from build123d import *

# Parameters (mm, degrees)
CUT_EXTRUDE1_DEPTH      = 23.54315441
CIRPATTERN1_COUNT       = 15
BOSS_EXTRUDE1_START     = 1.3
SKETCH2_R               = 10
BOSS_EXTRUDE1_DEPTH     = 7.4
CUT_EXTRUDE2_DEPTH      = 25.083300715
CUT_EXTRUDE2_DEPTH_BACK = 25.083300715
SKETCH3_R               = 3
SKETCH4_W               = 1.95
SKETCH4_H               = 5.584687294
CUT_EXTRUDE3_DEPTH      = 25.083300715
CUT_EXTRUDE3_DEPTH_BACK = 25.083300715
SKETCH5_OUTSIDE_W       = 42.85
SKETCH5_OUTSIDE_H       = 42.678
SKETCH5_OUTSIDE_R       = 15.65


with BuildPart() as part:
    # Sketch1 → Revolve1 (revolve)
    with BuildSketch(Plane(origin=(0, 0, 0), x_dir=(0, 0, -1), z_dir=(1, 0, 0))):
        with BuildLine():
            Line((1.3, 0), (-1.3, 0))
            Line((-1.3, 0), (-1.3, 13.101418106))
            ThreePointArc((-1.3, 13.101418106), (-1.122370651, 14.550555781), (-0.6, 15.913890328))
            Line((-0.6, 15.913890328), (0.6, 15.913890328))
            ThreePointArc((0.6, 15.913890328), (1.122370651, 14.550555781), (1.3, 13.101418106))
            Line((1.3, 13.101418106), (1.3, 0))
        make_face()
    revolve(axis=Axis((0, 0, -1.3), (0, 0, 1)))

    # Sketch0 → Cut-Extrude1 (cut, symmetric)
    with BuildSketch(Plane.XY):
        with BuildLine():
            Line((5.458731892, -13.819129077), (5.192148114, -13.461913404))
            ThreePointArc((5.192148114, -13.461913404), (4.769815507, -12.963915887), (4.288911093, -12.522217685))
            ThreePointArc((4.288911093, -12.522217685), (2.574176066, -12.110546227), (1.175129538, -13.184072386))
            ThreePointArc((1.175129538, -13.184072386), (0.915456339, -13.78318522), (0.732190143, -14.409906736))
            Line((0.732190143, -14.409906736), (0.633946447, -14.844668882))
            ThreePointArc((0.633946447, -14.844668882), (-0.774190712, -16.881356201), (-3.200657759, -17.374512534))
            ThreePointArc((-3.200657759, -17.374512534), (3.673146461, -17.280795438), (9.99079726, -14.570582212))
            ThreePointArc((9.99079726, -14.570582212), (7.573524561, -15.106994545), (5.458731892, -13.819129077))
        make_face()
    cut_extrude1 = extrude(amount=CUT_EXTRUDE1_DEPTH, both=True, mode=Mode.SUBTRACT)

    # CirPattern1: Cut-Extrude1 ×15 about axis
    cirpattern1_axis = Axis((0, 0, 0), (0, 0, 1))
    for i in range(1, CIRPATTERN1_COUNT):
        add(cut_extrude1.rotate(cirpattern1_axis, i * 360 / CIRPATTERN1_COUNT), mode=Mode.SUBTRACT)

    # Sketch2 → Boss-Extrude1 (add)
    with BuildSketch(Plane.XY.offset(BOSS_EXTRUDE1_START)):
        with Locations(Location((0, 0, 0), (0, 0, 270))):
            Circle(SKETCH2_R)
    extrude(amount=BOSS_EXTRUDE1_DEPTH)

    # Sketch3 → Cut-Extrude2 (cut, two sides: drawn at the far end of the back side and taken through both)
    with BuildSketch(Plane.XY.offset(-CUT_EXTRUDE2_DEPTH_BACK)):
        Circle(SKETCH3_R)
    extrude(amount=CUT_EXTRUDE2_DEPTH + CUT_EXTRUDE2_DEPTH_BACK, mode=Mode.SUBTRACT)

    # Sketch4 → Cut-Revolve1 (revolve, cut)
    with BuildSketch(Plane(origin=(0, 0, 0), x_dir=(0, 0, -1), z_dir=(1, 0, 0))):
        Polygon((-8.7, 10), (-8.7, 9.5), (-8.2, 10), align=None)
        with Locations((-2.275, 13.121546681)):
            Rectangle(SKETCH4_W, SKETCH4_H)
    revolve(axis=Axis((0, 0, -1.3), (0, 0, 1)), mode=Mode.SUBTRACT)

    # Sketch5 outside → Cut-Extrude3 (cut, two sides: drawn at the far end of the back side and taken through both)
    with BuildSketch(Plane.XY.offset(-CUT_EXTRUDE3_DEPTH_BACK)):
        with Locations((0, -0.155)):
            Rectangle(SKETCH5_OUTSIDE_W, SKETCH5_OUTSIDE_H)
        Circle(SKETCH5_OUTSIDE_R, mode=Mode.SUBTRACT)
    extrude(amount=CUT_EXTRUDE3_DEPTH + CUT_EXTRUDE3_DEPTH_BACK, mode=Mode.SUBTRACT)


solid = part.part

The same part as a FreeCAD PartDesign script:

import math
import FreeCAD as App
import Part
import Sketcher

V = App.Vector


def add_polygon(sketch, points):
    """Adds a closed chain of lines whose ends are joined by coincident constraints."""
    first, n = sketch.GeometryCount, len(points)
    for a, b in zip(points, points[1:] + points[:1]):
        sketch.addGeometry(Part.LineSegment(App.Vector(*a, 0), App.Vector(*b, 0)), False)
    for i in range(n):
        sketch.addConstraint(Sketcher.Constraint("Coincident", first + i, 2, first + (i + 1) % n, 1))

doc = App.newDocument("Part")
body = doc.addObject("PartDesign::Body", "Body")

# Sketch on YZ plane
sketch1 = body.newObject("Sketcher::SketchObject", "Sketch")
sketch1.AttachmentSupport = (doc.getObject("YZ_Plane"), [""])
sketch1.MapMode = "FlatFace"
sketch1.addGeometry(Part.LineSegment(V(0, 1.3, 0), V(0, -1.3, 0)), False)
sketch1.addGeometry(Part.LineSegment(V(0, -1.3, 0), V(13.1, -1.3, 0)), False)
sketch1.addGeometry(Part.ArcOfCircle(Part.Circle(V(13.1, 4.7, 0), V(0, 0, 1), 6), math.radians(-90), math.radians(-62)), False)
sketch1.addGeometry(Part.LineSegment(V(15.9, -0.6, 0), V(15.9, 0.6, 0)), False)
sketch1.addGeometry(Part.ArcOfCircle(Part.Circle(V(13.1, -4.7, 0), V(0, 0, 1), 6), math.radians(62), math.radians(90)), False)
sketch1.addGeometry(Part.LineSegment(V(13.1, 1.3, 0), V(0, 1.3, 0)), False)
sketch1.addConstraint(Sketcher.Constraint("Coincident", 0, 2, 1, 1))
sketch1.addConstraint(Sketcher.Constraint("Tangent", 1, 2, 2, 1))
sketch1.addConstraint(Sketcher.Constraint("Coincident", 2, 2, 3, 1))
sketch1.addConstraint(Sketcher.Constraint("Coincident", 3, 2, 4, 1))
sketch1.addConstraint(Sketcher.Constraint("Tangent", 4, 2, 5, 1))
sketch1.addConstraint(Sketcher.Constraint("Coincident", 5, 2, 0, 1))
sketch1.addConstraint(Sketcher.Constraint("Vertical", 0))
sketch1.addConstraint(Sketcher.Constraint("Horizontal", 1))
sketch1.addConstraint(Sketcher.Constraint("Vertical", 3))
sketch1.addConstraint(Sketcher.Constraint("Horizontal", 5))
sketch1.addConstraint(Sketcher.Constraint("Equal", 2, 4))
sketch1.addConstraint(Sketcher.Constraint("Symmetric", 0, 2, 5, 2, -1, 1))
sketch1.addConstraint(Sketcher.Constraint("Vertical", 2, 3, 4, 3))
sketch1.addConstraint(Sketcher.Constraint("Radius", 2, 6.0))
sketch1.addConstraint(Sketcher.Constraint("DistanceY", 0, 2, 0, 1, 2.6))
sketch1.addConstraint(Sketcher.Constraint("DistanceY", 3, 1, 3, 2, 1.2))
sketch1.addConstraint(Sketcher.Constraint("DistanceX", 1, 1, 1, 2, 13.101418))
revolution = body.newObject("PartDesign::Revolution", "Revolution")
revolution.Profile = sketch1
revolution.ReferenceAxis = (sketch1, ["V_Axis"])
revolution.Angle = 360

# Sketch on XY plane
sketch2 = body.newObject("Sketcher::SketchObject", "Sketch001")
sketch2.AttachmentSupport = (doc.getObject("XY_Plane"), [""])
sketch2.MapMode = "FlatFace"
sketch2.addGeometry(Part.LineSegment(V(5.46, -13.82, 0), V(5.19, -13.46, 0)), False)
sketch2.addGeometry(Part.ArcOfCircle(Part.Circle(V(0.99, -16.6, 0), V(0, 0, 1), 5.25), math.radians(36.73), math.radians(51)), False)
sketch2.addGeometry(Part.ArcOfCircle(Part.Circle(V(3, -14.11, 0), V(0, 0, 1), 2.05), math.radians(51), math.radians(153)), False)
sketch2.addGeometry(Part.ArcOfCircle(Part.Circle(V(5.85, -15.57, 0), V(0, 0, 1), 5.25), math.radians(153), math.radians(167.27)), False)
sketch2.addGeometry(Part.LineSegment(V(0.73, -14.41, 0), V(0.63, -14.84, 0)), False)
sketch2.addGeometry(Part.ArcOfCircle(Part.Circle(V(-2.6, -14.11, 0), V(0, 0, 1), 3.32), math.radians(-100), math.radians(-13)), False)
sketch2.addGeometry(Part.ArcOfCircle(Part.Circle(V(0, 0, 0), V(0, 0, 1), 17.67), math.radians(-100), math.radians(-56)), False)
sketch2.addGeometry(Part.ArcOfCircle(Part.Circle(V(8.12, -11.84, 0), V(0, 0, 1), 3.32), math.radians(-143), math.radians(-56)), False)
sketch2.addConstraint(Sketcher.Constraint("Tangent", 0, 2, 1, 1))
sketch2.addConstraint(Sketcher.Constraint("Tangent", 1, 2, 2, 1))
sketch2.addConstraint(Sketcher.Constraint("Tangent", 2, 2, 3, 1))
sketch2.addConstraint(Sketcher.Constraint("Tangent", 3, 2, 4, 1))
sketch2.addConstraint(Sketcher.Constraint("Tangent", 4, 2, 5, 2))
sketch2.addConstraint(Sketcher.Constraint("Tangent", 5, 1, 6, 1))
sketch2.addConstraint(Sketcher.Constraint("Tangent", 6, 2, 7, 2))
sketch2.addConstraint(Sketcher.Constraint("Tangent", 7, 1, 0, 1))
sketch2.addConstraint(Sketcher.Constraint("Coincident", 6, 3, -1, 1))
sketch2.addConstraint(Sketcher.Constraint("Equal", 1, 3))
sketch2.addConstraint(Sketcher.Constraint("Equal", 5, 7))
sketch2.addConstraint(Sketcher.Constraint("Horizontal", 2, 3, 5, 3))
sketch2.addConstraint(Sketcher.Constraint("Equal", 0, 4))
sketch2.addConstraint(Sketcher.Constraint("DistanceX", -1, 1, 2, 3, 3.0))
sketch2.addConstraint(Sketcher.Constraint("DistanceX", 5, 3, -1, 1, 2.6))
sketch2.addConstraint(Sketcher.Constraint("Radius", 1, 5.2481))
sketch2.addConstraint(Sketcher.Constraint("Radius", 2, 2.0481))
sketch2.addConstraint(Sketcher.Constraint("Radius", 6, 17.666859))
sketch2.addConstraint(Sketcher.Constraint("Radius", 5, 3.315486))
sketch2.addConstraint(Sketcher.Constraint("DistanceX", -1, 1, 3, 3, 5.851221))
sketch2.addConstraint(Sketcher.Constraint("DistanceX", -1, 1, 0, 2, 5.192148))
pocket1 = body.newObject("PartDesign::Pocket", "Pocket")
pocket1.Profile = sketch2
pocket1.Length = 47.086309
pocket1.Midplane = True
doc.recompute()

polarpattern = body.newObject("PartDesign::PolarPattern", "PolarPattern")
polarpattern.Originals = [pocket1]
polarpattern.Axis = (doc.getObject("Z_Axis"), [""])
polarpattern.Angle = 360
polarpattern.Occurrences = 15
body.Tip = polarpattern

# Sketch on XY plane
sketch3 = body.newObject("Sketcher::SketchObject", "Sketch002")
sketch3.AttachmentSupport = (doc.getObject("XY_Plane"), [""])
sketch3.MapMode = "FlatFace"
sketch3.AttachmentOffset = App.Placement(V(0, 0, 1.3), App.Rotation())
sketch3.addGeometry(Part.Circle(V(0, 0, 0), V(0, 0, 1), 10), False)
sketch3.addConstraint(Sketcher.Constraint("Coincident", 0, 3, -1, 1))
sketch3.addConstraint(Sketcher.Constraint("Diameter", 0, 20.0))
pad1 = body.newObject("PartDesign::Pad", "Pad")
pad1.Profile = sketch3
pad1.Length = 7.4

# Sketch on XY plane
sketch4 = body.newObject("Sketcher::SketchObject", "Sketch003")
sketch4.AttachmentSupport = (doc.getObject("XY_Plane"), [""])
sketch4.MapMode = "FlatFace"
sketch4.addGeometry(Part.Circle(V(0, 0, 0), V(0, 0, 1), 3), False)
sketch4.addConstraint(Sketcher.Constraint("Coincident", 0, 3, -1, 1))
sketch4.addConstraint(Sketcher.Constraint("Diameter", 0, 6.0))
pocket2 = body.newObject("PartDesign::Pocket", "Pocket001")
pocket2.Profile = sketch4
pocket2.Type = "ThroughAll"
pocket2.Midplane = True

# Sketch on YZ plane
sketch5 = body.newObject("Sketcher::SketchObject", "Sketch004")
sketch5.AttachmentSupport = (doc.getObject("YZ_Plane"), [""])
sketch5.MapMode = "FlatFace"
add_polygon(sketch5, [(10, 8.7), (9.5, 8.7), (10, 8.2)])  # lines 0-2
add_polygon(sketch5, [(15.9, 3.2), (10.3, 3.2), (10.3, 1.3), (15.9, 1.3)])  # lines 3-6
sketch5.addConstraint(Sketcher.Constraint("Horizontal", 0))
sketch5.addConstraint(Sketcher.Constraint("Vertical", 2))
sketch5.addConstraint(Sketcher.Constraint("Horizontal", 3))
sketch5.addConstraint(Sketcher.Constraint("Vertical", 4))
sketch5.addConstraint(Sketcher.Constraint("Horizontal", 5))
sketch5.addConstraint(Sketcher.Constraint("Vertical", 6))
sketch5.addConstraint(Sketcher.Constraint("Equal", 0, 2))
sketch5.addConstraint(Sketcher.Constraint("DistanceX", 0, 2, 0, 1, 0.5))
sketch5.addConstraint(Sketcher.Constraint("DistanceX", -1, 1, 1, 2, 10.0))
sketch5.addConstraint(Sketcher.Constraint("DistanceY", 4, 2, 4, 1, 1.95))
sketch5.addConstraint(Sketcher.Constraint("DistanceY", -1, 1, 0, 2, 8.7))
sketch5.addConstraint(Sketcher.Constraint("DistanceY", -1, 1, 4, 2, 1.3))
sketch5.addConstraint(Sketcher.Constraint("DistanceX", 3, 2, 3, 1, 5.584687))
sketch5.addConstraint(Sketcher.Constraint("DistanceX", -1, 1, 5, 2, 15.91389))
groove = body.newObject("PartDesign::Groove", "Groove")
groove.Profile = sketch5
groove.ReferenceAxis = (sketch5, ["V_Axis"])
groove.Angle = 360

# Sketch on XY plane
sketch6 = body.newObject("Sketcher::SketchObject", "Sketch005")
sketch6.AttachmentSupport = (doc.getObject("XY_Plane"), [""])
sketch6.MapMode = "FlatFace"
add_polygon(sketch6, [(-21, 21), (-21, -21), (21, -21), (21, 21)])  # lines 0-3
sketch6.addGeometry(Part.Circle(V(0, 0, 0), V(0, 0, 1), 16), False)  # 4
sketch6.addConstraint(Sketcher.Constraint("Vertical", 0))
sketch6.addConstraint(Sketcher.Constraint("Horizontal", 1))
sketch6.addConstraint(Sketcher.Constraint("Vertical", 2))
sketch6.addConstraint(Sketcher.Constraint("Horizontal", 3))
sketch6.addConstraint(Sketcher.Constraint("Coincident", 4, 3, -1, 1))
sketch6.addConstraint(Sketcher.Constraint("Diameter", 4, 31.3))
sketch6.addConstraint(Sketcher.Constraint("DistanceX", 1, 1, 1, 2, 42.85))
sketch6.addConstraint(Sketcher.Constraint("DistanceY", 0, 2, 0, 1, 42.678))
sketch6.addConstraint(Sketcher.Constraint("DistanceX", 0, 2, -1, 1, 21.425))
sketch6.addConstraint(Sketcher.Constraint("DistanceY", 0, 2, -1, 1, 21.494))
pocket3 = body.newObject("PartDesign::Pocket", "Pocket002")
pocket3.Profile = sketch6
pocket3.Type = "ThroughAll"
pocket3.Midplane = True

doc.recompute()
